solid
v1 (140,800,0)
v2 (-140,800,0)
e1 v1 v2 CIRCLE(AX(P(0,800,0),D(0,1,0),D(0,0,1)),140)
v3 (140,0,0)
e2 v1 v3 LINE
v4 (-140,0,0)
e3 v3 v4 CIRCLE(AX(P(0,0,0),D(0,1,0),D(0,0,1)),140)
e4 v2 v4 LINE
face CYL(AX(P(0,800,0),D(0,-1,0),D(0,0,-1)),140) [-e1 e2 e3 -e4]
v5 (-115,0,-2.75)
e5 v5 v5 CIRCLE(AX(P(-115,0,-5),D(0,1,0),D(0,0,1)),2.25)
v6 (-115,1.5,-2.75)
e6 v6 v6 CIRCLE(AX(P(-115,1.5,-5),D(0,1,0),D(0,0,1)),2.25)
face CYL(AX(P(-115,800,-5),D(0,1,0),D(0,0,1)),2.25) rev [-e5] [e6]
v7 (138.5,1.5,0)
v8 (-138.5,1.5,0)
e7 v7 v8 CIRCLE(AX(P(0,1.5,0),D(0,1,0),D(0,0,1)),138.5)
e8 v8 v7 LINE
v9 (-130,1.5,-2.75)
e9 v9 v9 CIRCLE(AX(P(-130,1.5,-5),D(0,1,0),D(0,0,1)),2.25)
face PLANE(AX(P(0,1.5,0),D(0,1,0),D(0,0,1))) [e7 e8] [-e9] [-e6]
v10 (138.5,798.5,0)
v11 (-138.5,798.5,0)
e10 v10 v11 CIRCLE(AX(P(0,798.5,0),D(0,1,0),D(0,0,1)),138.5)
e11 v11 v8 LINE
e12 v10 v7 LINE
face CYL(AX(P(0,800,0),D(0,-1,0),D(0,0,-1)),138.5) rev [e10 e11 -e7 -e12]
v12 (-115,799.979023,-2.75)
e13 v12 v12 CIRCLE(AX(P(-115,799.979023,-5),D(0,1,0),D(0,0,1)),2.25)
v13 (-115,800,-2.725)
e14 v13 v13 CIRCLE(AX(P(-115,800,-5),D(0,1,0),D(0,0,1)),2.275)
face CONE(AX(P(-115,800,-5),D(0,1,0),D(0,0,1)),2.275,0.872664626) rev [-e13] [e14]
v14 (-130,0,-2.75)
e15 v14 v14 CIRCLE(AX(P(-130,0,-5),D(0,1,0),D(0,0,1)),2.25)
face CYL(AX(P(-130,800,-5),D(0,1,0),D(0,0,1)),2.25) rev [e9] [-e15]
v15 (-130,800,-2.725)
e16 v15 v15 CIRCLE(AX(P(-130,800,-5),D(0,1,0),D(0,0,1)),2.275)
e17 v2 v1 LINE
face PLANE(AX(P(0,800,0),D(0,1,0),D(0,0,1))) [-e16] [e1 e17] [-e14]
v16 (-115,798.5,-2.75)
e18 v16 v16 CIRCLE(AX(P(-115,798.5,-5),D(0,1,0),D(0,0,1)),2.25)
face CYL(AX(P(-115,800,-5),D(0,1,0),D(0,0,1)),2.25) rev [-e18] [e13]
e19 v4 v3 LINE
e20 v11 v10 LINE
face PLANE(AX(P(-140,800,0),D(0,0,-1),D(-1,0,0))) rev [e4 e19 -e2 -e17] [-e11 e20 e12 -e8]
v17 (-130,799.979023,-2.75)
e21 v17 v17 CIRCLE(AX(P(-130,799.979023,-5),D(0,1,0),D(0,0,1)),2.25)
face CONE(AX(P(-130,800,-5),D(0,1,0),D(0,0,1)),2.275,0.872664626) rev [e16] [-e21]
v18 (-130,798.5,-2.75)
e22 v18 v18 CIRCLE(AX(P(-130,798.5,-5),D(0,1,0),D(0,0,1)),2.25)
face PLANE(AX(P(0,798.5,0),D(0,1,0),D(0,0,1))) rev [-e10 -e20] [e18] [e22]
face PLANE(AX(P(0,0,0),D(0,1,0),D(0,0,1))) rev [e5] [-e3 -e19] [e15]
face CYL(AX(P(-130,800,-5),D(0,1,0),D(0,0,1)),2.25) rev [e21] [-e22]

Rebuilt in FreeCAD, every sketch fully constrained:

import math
import FreeCAD as App
import Part
import Sketcher
from FreeCAD import Vector
Q = App.Units.Quantity


def faces_at(feature, points):
    """Names of the faces that lie closest to the given points."""
    faces = feature.Shape.Faces
    near = lambda p: min(range(len(faces)), key=lambda i: faces[i].distToShape(Part.Vertex(*p))[0])
    return sorted({f"Face{near(p) + 1}" for p in points})

doc = App.newDocument("Part")
body = doc.addObject("PartDesign::Body", "Body")

# Sketch on XZ plane
sketch1 = body.newObject("Sketcher::SketchObject", "Sketch")
sketch1.AttachmentSupport = (doc.getObject("XZ_Plane"), [""])
sketch1.MapMode = "FlatFace"
sketch1.addGeometry([
    Part.LineSegment(Vector(-140, 0, 0), Vector(140, 0, 0)),
    Part.ArcOfCircle(Part.Circle(Vector(0, 0, 0), Vector(0, 0, 1), 140), math.radians(180), math.radians(360)),
], False)
sketch1.addConstraint([
    Sketcher.Constraint("Coincident", 0, 1, 1, 1),
    Sketcher.Constraint("Coincident", 1, 2, 0, 2),
    Sketcher.Constraint("Horizontal", 0),
    Sketcher.Constraint("Coincident", 1, 3, -1, 1),
    Sketcher.Constraint("PointOnObject", 0, 1, -1),
    Sketcher.Constraint("Radius", 1, Q("140 mm")),
])
pad1 = body.newObject("PartDesign::Pad", "Pad")
pad1.Profile = sketch1
pad1.Length = 800
pad1.Reversed = True
doc.recompute()

thickness = body.newObject("PartDesign::Thickness", "Thickness")
thickness.Base = (pad1, faces_at(pad1, [(0, 400, 0)]))
thickness.Value = 1.5
thickness.Reversed = True
thickness.Join = "Arc"

# Sketch on XZ plane
sketch2 = body.newObject("Sketcher::SketchObject", "Sketch001")
sketch2.AttachmentSupport = (doc.getObject("XZ_Plane"), [""])
sketch2.MapMode = "FlatFace"
sketch2.AttachmentOffset = App.Placement(Vector(0, 0, -800), App.Rotation())
sketch2.addGeometry([
    Part.Circle(Vector(-130, -5, 0), Vector(0, 0, 1), 2.25),
    Part.Circle(Vector(-115, -5, 0), Vector(0, 0, 1), 2.25),
], False)
sketch2.addConstraint([
    Sketcher.Constraint("Equal", 0, 1),
    Sketcher.Constraint("Horizontal", 0, 3, 1, 3),
    Sketcher.Constraint("Diameter", 0, Q("4.5 mm")),
    Sketcher.Constraint("DistanceX", 0, 3, -1, 1, Q("130 mm")),
    Sketcher.Constraint("DistanceY", 0, 3, -1, 1, Q("5 mm")),
    Sketcher.Constraint("DistanceX", 1, 3, -1, 1, Q("115 mm")),
])
doc.recompute()
hole = body.newObject("PartDesign::Hole", "Hole")
hole.Profile = sketch2
hole.ThreadType = "None"
hole.Diameter = 4.5
hole.DepthType = "ThroughAll"
hole.HoleCutType = "Countersink"
hole.HoleCutDiameter = 4.55
hole.HoleCutCountersinkAngle = 100
hole.Reversed = True

doc.recompute()
